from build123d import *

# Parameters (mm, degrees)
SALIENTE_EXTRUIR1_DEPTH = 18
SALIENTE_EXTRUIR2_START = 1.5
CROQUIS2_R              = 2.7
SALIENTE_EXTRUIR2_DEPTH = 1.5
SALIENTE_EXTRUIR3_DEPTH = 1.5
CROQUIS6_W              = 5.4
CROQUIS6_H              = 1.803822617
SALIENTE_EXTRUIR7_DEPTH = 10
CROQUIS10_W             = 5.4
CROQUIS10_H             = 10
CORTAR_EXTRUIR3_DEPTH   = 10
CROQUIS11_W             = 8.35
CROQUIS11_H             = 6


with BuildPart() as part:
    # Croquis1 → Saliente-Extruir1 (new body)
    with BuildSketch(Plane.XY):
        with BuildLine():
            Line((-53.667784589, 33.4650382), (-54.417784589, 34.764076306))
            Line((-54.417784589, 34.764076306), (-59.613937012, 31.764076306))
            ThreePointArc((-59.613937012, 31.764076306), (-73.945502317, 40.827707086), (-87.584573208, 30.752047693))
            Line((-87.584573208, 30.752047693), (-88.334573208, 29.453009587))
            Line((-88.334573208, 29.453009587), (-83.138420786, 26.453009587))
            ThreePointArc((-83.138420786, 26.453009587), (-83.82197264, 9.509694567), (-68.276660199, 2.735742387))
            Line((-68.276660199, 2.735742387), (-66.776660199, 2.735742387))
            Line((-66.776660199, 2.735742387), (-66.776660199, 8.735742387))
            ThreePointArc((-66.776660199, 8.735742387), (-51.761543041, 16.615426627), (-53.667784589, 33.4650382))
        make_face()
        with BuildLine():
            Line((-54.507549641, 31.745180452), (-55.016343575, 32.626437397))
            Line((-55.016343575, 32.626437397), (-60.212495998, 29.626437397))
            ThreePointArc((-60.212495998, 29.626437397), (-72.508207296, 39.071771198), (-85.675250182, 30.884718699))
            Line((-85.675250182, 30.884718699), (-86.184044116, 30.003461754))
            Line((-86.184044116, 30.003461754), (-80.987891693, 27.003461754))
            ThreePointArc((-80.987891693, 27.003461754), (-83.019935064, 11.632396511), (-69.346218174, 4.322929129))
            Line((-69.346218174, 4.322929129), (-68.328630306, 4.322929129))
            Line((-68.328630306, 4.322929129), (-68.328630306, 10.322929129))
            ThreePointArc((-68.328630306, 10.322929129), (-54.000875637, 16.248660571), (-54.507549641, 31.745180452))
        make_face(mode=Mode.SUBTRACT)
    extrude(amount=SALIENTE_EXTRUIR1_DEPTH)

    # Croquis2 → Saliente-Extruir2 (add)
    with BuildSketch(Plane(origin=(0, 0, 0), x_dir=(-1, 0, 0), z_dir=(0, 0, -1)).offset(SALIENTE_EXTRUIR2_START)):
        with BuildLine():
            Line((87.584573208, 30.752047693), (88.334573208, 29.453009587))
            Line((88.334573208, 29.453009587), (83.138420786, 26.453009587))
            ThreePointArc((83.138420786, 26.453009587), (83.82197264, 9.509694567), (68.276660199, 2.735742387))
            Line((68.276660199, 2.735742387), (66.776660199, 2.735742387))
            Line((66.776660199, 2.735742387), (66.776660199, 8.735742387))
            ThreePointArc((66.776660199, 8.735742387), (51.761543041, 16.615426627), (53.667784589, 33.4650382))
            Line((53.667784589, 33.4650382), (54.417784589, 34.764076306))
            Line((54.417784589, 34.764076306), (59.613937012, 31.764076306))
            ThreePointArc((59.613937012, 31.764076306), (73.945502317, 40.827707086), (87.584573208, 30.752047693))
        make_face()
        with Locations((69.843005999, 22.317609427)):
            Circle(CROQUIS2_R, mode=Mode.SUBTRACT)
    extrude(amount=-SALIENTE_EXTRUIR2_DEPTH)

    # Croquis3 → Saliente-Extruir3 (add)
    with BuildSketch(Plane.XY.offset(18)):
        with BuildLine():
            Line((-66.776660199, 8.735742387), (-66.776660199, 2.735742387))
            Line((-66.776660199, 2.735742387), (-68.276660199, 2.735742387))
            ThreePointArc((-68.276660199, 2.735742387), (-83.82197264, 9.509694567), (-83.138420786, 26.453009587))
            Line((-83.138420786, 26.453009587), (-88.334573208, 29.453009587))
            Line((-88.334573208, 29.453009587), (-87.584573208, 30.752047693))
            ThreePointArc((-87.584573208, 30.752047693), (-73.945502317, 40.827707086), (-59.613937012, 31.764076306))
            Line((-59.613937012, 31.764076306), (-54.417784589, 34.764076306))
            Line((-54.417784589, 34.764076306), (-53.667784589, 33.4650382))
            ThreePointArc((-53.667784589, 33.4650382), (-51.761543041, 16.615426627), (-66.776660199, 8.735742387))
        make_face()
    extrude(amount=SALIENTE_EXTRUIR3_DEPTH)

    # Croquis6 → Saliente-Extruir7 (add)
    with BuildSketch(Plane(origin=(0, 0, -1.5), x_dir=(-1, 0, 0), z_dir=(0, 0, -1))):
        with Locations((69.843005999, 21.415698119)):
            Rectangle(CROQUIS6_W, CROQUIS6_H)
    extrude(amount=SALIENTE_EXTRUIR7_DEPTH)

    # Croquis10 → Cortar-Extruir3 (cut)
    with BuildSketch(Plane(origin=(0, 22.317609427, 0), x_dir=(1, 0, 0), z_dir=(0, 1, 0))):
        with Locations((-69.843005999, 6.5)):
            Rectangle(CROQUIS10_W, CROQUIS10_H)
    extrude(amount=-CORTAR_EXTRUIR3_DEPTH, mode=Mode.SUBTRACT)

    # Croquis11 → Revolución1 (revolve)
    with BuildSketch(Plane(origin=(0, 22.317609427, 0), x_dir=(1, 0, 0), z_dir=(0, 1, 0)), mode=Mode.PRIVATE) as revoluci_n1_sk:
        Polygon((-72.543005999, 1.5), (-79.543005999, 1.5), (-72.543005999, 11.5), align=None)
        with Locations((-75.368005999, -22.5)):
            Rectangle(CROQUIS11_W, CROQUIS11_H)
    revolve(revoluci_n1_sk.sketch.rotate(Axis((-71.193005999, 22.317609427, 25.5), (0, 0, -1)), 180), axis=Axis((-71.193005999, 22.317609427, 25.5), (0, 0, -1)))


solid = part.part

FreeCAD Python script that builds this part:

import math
import FreeCAD as App
import Part
import Sketcher

V = App.Vector
Q = App.Units.Quantity


def add_polygon(sketch, points):
    """Adds a closed chain of lines whose ends are joined by coincident constraints."""
    first, n = sketch.GeometryCount, len(points)
    for a, b in zip(points, points[1:] + points[:1]):
        sketch.addGeometry(Part.LineSegment(App.Vector(*a, 0), App.Vector(*b, 0)), False)
    for i in range(n):
        sketch.addConstraint(Sketcher.Constraint("Coincident", first + i, 2, first + (i + 1) % n, 1))

doc = App.newDocument("Part")
body = doc.addObject("PartDesign::Body", "Body")

# Sketch on XY plane
sketch1 = body.newObject("Sketcher::SketchObject", "Sketch")
sketch1.AttachmentSupport = (doc.getObject("XY_Plane"), [""])
sketch1.MapMode = "FlatFace"
sketch1.addGeometry([
    Part.LineSegment(V(-53.7, 33.5, 0), V(-54.4, 34.8, 0)),  # 0
    Part.LineSegment(V(-54.4, 34.8, 0), V(-59.6, 31.8, 0)),  # 1
    Part.ArcOfCircle(Part.Circle(V(-73.4, 25.8, 0), V(0, 0, 1), 15), math.radians(23), math.radians(161)),  # 2
    Part.LineSegment(V(-87.6, 30.8, 0), V(-88.3, 29.5, 0)),  # 3
    Part.LineSegment(V(-88.3, 29.5, 0), V(-83.1, 26.5, 0)),  # 4
    Part.ArcOfCircle(Part.Circle(V(-71.1, 17.5, 0), V(0, 0, 1), 15), math.radians(143), math.radians(281)),  # 5
    Part.LineSegment(V(-68.3, 2.7, 0), V(-66.8, 2.7, 0)),  # 6
    Part.LineSegment(V(-66.8, 2.7, 0), V(-66.8, 8.7, 0)),  # 7
    Part.ArcOfCircle(Part.Circle(V(-65, 23.6, 0), V(0, 0, 1), 15), math.radians(-97), math.radians(41)),  # 8
    Part.LineSegment(V(-55, 32.6, 0), V(-54.5, 31.7, 0)),  # 9
    Part.ArcOfCircle(Part.Circle(V(-65.4, 23.6, 0), V(0, 0, 1), 13.6), math.radians(-102), math.radians(37)),  # 10
    Part.LineSegment(V(-68.3, 10.3, 0), V(-68.3, 4.3, 0)),  # 11
    Part.LineSegment(V(-68.3, 4.3, 0), V(-69.3, 4.3, 0)),  # 12
    Part.ArcOfCircle(Part.Circle(V(-70.9, 17.9, 0), V(0, 0, 1), 13.6), math.radians(138), math.radians(277)),  # 13
    Part.LineSegment(V(-81, 27, 0), V(-86.2, 30, 0)),  # 14
    Part.LineSegment(V(-86.2, 30, 0), V(-85.7, 30.9, 0)),  # 15
    Part.ArcOfCircle(Part.Circle(V(-73.2, 25.5, 0), V(0, 0, 1), 13.6), math.radians(18), math.radians(157)),  # 16
    Part.LineSegment(V(-60.2, 29.6, 0), V(-55, 32.6, 0)),  # 17
], False)
sketch1.addConstraint([
    Sketcher.Constraint("Coincident", 0, 2, 1, 1),
    Sketcher.Constraint("Coincident", 1, 2, 2, 1),
    Sketcher.Constraint("Coincident", 2, 2, 3, 1),
    Sketcher.Constraint("Coincident", 3, 2, 4, 1),
    Sketcher.Constraint("Coincident", 4, 2, 5, 1),
    Sketcher.Constraint("Coincident", 5, 2, 6, 1),
    Sketcher.Constraint("Coincident", 6, 2, 7, 1),
    Sketcher.Constraint("Coincident", 7, 2, 8, 1),
    Sketcher.Constraint("Coincident", 8, 2, 0, 1),
    Sketcher.Constraint("Coincident", 9, 2, 10, 2),
    Sketcher.Constraint("Coincident", 10, 1, 11, 1),
    Sketcher.Constraint("Coincident", 11, 2, 12, 1),
    Sketcher.Constraint("Coincident", 12, 2, 13, 2),
    Sketcher.Constraint("Coincident", 13, 1, 14, 1),
    Sketcher.Constraint("Coincident", 14, 2, 15, 1),
    Sketcher.Constraint("Coincident", 15, 2, 16, 2),
    Sketcher.Constraint("Coincident", 16, 1, 17, 1),
    Sketcher.Constraint("Coincident", 17, 2, 9, 1),
    Sketcher.Constraint("Horizontal", 6),
    Sketcher.Constraint("Vertical", 7),
    Sketcher.Constraint("Vertical", 11),
    Sketcher.Constraint("Horizontal", 12),
    Sketcher.Constraint("Equal", 2, 5),
    Sketcher.Constraint("Equal", 5, 8),
    Sketcher.Constraint("Equal", 10, 13),
    Sketcher.Constraint("Equal", 13, 16),
    Sketcher.Constraint("Perpendicular", 0, 1),
    Sketcher.Constraint("Perpendicular", 3, 4),
    Sketcher.Constraint("Perpendicular", 1, 9),
    Sketcher.Constraint("Parallel", 4, 14),
    Sketcher.Constraint("Perpendicular", 14, 15),
    Sketcher.Constraint("Perpendicular", 9, 17),
    Sketcher.Constraint("Equal", 7, 11),
    Sketcher.Constraint("Equal", 0, 3),
    Sketcher.Constraint("Equal", 1, 4),
    Sketcher.Constraint("Equal", 4, 14),
    Sketcher.Constraint("Equal", 9, 15),
    Sketcher.Constraint("Equal", 14, 17),
    Sketcher.Constraint("DistanceY", 7, 1, 7, 2, 6.0),
    Sketcher.Constraint("Angle", 0, Q("120 deg")),
    Sketcher.Constraint("Angle", 3, Q("-120 deg")),
    Sketcher.Constraint("Distance", 1, 6.0),
    Sketcher.Constraint("DistanceX", 6, 1, 6, 2, 1.5),
    Sketcher.Constraint("Distance", 0, 1.5),
    Sketcher.Constraint("Radius", 10, 13.617321),
    Sketcher.Constraint("Radius", 2, 15.013887),
    Sketcher.Constraint("DistanceY", 16, 3, 2, 2, 5.281001),
    Sketcher.Constraint("DistanceX", 8, 3, 0, 2, 10.609101),
    Sketcher.Constraint("DistanceY", 10, 3, 9, 2, 8.114101),
    Sketcher.Constraint("DistanceY", 16, 1, 8, 2, 3.838601),
    Sketcher.Constraint("DistanceX", 12, 2, 12, 1, 1.017588),
    Sketcher.Constraint("DistanceY", -1, 1, 2, 3, 25.823638),
    Sketcher.Constraint("DistanceY", -1, 1, 10, 3, 23.631079),
    Sketcher.Constraint("DistanceX", 13, 3, -1, 1, 70.905312),
    Sketcher.Constraint("DistanceX", 16, 3, -1, 1, 73.180308),
    Sketcher.Constraint("DistanceY", -1, 1, 3, 2, 29.45301),
    Sketcher.Constraint("DistanceX", 4, 2, -1, 1, 83.138421),
    Sketcher.Constraint("DistanceX", 5, 2, -1, 1, 68.27666),
    Sketcher.Constraint("DistanceY", -1, 1, 8, 2, 33.465038),
    Sketcher.Constraint("DistanceX", 10, 1, -1, 1, 68.32863),
])
pad1 = body.newObject("PartDesign::Pad", "Pad")
pad1.Profile = sketch1
pad1.Length = 18

# Sketch on XY plane
sketch2 = body.newObject("Sketcher::SketchObject", "Sketch001")
sketch2.AttachmentSupport = (doc.getObject("XY_Plane"), [""])
sketch2.MapMode = "FlatFace"
sketch2.AttachmentOffset = App.Placement(V(0, 0, -1.5), App.Rotation())
sketch2.addGeometry([
    Part.LineSegment(V(-88.3, 29.5, 0), V(-87.6, 30.8, 0)),  # 0
    Part.ArcOfCircle(Part.Circle(V(-73.4, 25.8, 0), V(0, 0, 1), 15), math.radians(23), math.radians(161)),  # 1
    Part.LineSegment(V(-59.6, 31.8, 0), V(-54.4, 34.8, 0)),  # 2
    Part.LineSegment(V(-54.4, 34.8, 0), V(-53.7, 33.5, 0)),  # 3
    Part.ArcOfCircle(Part.Circle(V(-65, 23.6, 0), V(0, 0, 1), 15), math.radians(-97), math.radians(41)),  # 4
    Part.LineSegment(V(-66.8, 8.7, 0), V(-66.8, 2.7, 0)),  # 5
    Part.LineSegment(V(-66.8, 2.7, 0), V(-68.3, 2.7, 0)),  # 6
    Part.ArcOfCircle(Part.Circle(V(-71.1, 17.5, 0), V(0, 0, 1), 15), math.radians(143), math.radians(281)),  # 7
    Part.LineSegment(V(-83.1, 26.5, 0), V(-88.3, 29.5, 0)),  # 8
    Part.Circle(V(-69.8, 22.3, 0), V(0, 0, 1), 2.7),  # 9
], False)
sketch2.addConstraint([
    Sketcher.Constraint("Coincident", 0, 2, 1, 2),
    Sketcher.Constraint("Coincident", 1, 1, 2, 1),
    Sketcher.Constraint("Coincident", 2, 2, 3, 1),
    Sketcher.Constraint("Coincident", 3, 2, 4, 2),
    Sketcher.Constraint("Coincident", 4, 1, 5, 1),
    Sketcher.Constraint("Coincident", 5, 2, 6, 1),
    Sketcher.Constraint("Coincident", 6, 2, 7, 2),
    Sketcher.Constraint("Coincident", 7, 1, 8, 1),
    Sketcher.Constraint("Coincident", 8, 2, 0, 1),
    Sketcher.Constraint("Vertical", 5),
    Sketcher.Constraint("Horizontal", 6),
    Sketcher.Constraint("Equal", 1, 4),
    Sketcher.Constraint("Equal", 4, 7),
    Sketcher.Constraint("Perpendicular", 2, 3),
    Sketcher.Constraint("Perpendicular", 0, 8),
    Sketcher.Constraint("Equal", 0, 3),
    Sketcher.Constraint("Equal", 2, 8),
    Sketcher.Constraint("Diameter", 9, 5.4),
    Sketcher.Constraint("DistanceY", 5, 2, 5, 1, 6.0),
    Sketcher.Constraint("Angle", 0, Q("60 deg")),
    Sketcher.Constraint("Angle", 2, Q("30 deg")),
    Sketcher.Constraint("Distance", 2, 6.0),
    Sketcher.Constraint("DistanceX", 6, 2, 6, 1, 1.5),
    Sketcher.Constraint("Distance", 0, 1.5),
    Sketcher.Constraint("Radius", 1, 15.013887),
    Sketcher.Constraint("DistanceX", 7, 3, 9, 3, 1.256499),
    Sketcher.Constraint("DistanceX", 4, 3, 2, 2, 10.609101),
    Sketcher.Constraint("DistanceY", 1, 3, 3, 2, 7.6414),
    Sketcher.Constraint("DistanceY", 9, 3, 7, 1, 4.1354),
    Sketcher.Constraint("DistanceY", -1, 1, 1, 3, 25.823638),
    Sketcher.Constraint("DistanceY", -1, 1, 9, 3, 22.317609),
    Sketcher.Constraint("DistanceX", 4, 1, -1, 1, 66.77666),
    Sketcher.Constraint("DistanceX", 7, 1, -1, 1, 83.138421),
])
pad2 = body.newObject("PartDesign::Pad", "Pad001")
pad2.Profile = sketch2
pad2.Length = 1.5

# Sketch on XY plane
sketch3 = body.newObject("Sketcher::SketchObject", "Sketch002")
sketch3.AttachmentSupport = (doc.getObject("XY_Plane"), [""])
sketch3.MapMode = "FlatFace"
sketch3.AttachmentOffset = App.Placement(V(0, 0, 18), App.Rotation())
sketch3.addGeometry([
    Part.LineSegment(V(-66.8, 2.7, 0), V(-66.8, 8.7, 0)),  # 0
    Part.ArcOfCircle(Part.Circle(V(-65, 23.6, 0), V(0, 0, 1), 15), math.radians(-97), math.radians(41)),  # 1
    Part.LineSegment(V(-53.7, 33.5, 0), V(-54.4, 34.8, 0)),  # 2
    Part.LineSegment(V(-54.4, 34.8, 0), V(-59.6, 31.8, 0)),  # 3
    Part.ArcOfCircle(Part.Circle(V(-73.4, 25.8, 0), V(0, 0, 1), 15), math.radians(23), math.radians(161)),  # 4
    Part.LineSegment(V(-87.6, 30.8, 0), V(-88.3, 29.5, 0)),  # 5
    Part.LineSegment(V(-88.3, 29.5, 0), V(-83.1, 26.5, 0)),  # 6
    Part.ArcOfCircle(Part.Circle(V(-71.1, 17.5, 0), V(0, 0, 1), 15), math.radians(143), math.radians(281)),  # 7
    Part.LineSegment(V(-68.3, 2.7, 0), V(-66.8, 2.7, 0)),  # 8
], False)
sketch3.addConstraint([
    Sketcher.Constraint("Coincident", 0, 2, 1, 1),
    Sketcher.Constraint("Coincident", 1, 2, 2, 1),
    Sketcher.Constraint("Coincident", 2, 2, 3, 1),
    Sketcher.Constraint("Coincident", 3, 2, 4, 1),
    Sketcher.Constraint("Coincident", 4, 2, 5, 1),
    Sketcher.Constraint("Coincident", 5, 2, 6, 1),
    Sketcher.Constraint("Coincident", 6, 2, 7, 1),
    Sketcher.Constraint("Coincident", 7, 2, 8, 1),
    Sketcher.Constraint("Coincident", 8, 2, 0, 1),
    Sketcher.Constraint("Vertical", 0),
    Sketcher.Constraint("Horizontal", 8),
    Sketcher.Constraint("Equal", 1, 4),
    Sketcher.Constraint("Equal", 4, 7),
    Sketcher.Constraint("Perpendicular", 2, 3),
    Sketcher.Constraint("Perpendicular", 5, 6),
    Sketcher.Constraint("Equal", 2, 5),
    Sketcher.Constraint("Equal", 3, 6),
    Sketcher.Constraint("DistanceY", 0, 1, 0, 2, 6.0),
    Sketcher.Constraint("Angle", 2, Q("120 deg")),
    Sketcher.Constraint("Angle", 5, Q("-120 deg")),
    Sketcher.Constraint("Distance", 3, 6.0),
    Sketcher.Constraint("DistanceX", 8, 1, 8, 2, 1.5),
    Sketcher.Constraint("Distance", 2, 1.5),
    Sketcher.Constraint("Radius", 1, 15.013887),
    Sketcher.Constraint("DistanceX", 1, 3, 1, 2, 11.359101),
    Sketcher.Constraint("DistanceY", 4, 3, 1, 2, 7.6414),
    Sketcher.Constraint("DistanceY", -1, 1, 4, 3, 25.823638),
    Sketcher.Constraint("DistanceX", 0, 2, -1, 1, 66.77666),
    Sketcher.Constraint("DistanceY", -1, 1, 5, 2, 29.45301),
    Sketcher.Constraint("DistanceX", 6, 2, -1, 1, 83.138421),
])
pad3 = body.newObject("PartDesign::Pad", "Pad002")
pad3.Profile = sketch3
pad3.Length = 1.5

# Sketch on XY plane
sketch4 = body.newObject("Sketcher::SketchObject", "Sketch003")
sketch4.AttachmentSupport = (doc.getObject("XY_Plane"), [""])
sketch4.MapMode = "FlatFace"
sketch4.AttachmentOffset = App.Placement(V(0, 0, -1.5), App.Rotation())
add_polygon(sketch4, [(-67.1, 22.3), (-67.1, 20.5), (-72.5, 20.5), (-72.5, 22.3)])  # lines 0-3
sketch4.addConstraint([
    Sketcher.Constraint("Vertical", 0),
    Sketcher.Constraint("Horizontal", 1),
    Sketcher.Constraint("Vertical", 2),
    Sketcher.Constraint("Horizontal", 3),
    Sketcher.Constraint("DistanceX", 1, 2, 1, 1, 5.4),
    Sketcher.Constraint("DistanceY", 0, 2, 0, 1, 1.803823),
    Sketcher.Constraint("DistanceY", -1, 1, 2, 2, 22.317609),
    Sketcher.Constraint("DistanceX", 0, 2, -1, 1, 67.143006),
])
pad4 = body.newObject("PartDesign::Pad", "Pad003")
pad4.Profile = sketch4
pad4.Length = 10
pad4.Reversed = True

# Sketch on XZ plane
sketch5 = body.newObject("Sketcher::SketchObject", "Sketch004")
sketch5.AttachmentSupport = (doc.getObject("XZ_Plane"), [""])
sketch5.MapMode = "FlatFace"
sketch5.AttachmentOffset = App.Placement(V(0, 0, -22.317609), App.Rotation())
add_polygon(sketch5, [(-73, -12), (-73, -2), (-67, -2), (-67, -12)])  # lines 0-3
sketch5.addConstraint([
    Sketcher.Constraint("Vertical", 0),
    Sketcher.Constraint("Horizontal", 1),
    Sketcher.Constraint("Vertical", 2),
    Sketcher.Constraint("Horizontal", 3),
    Sketcher.Constraint("DistanceY", 0, 1, 0, 2, 10.0),
    Sketcher.Constraint("DistanceX", 1, 1, 1, 2, 5.4),
    Sketcher.Constraint("DistanceY", 0, 2, -1, 1, 1.5),
    Sketcher.Constraint("DistanceX", 0, 2, -1, 1, 72.543006),
])
pocket1 = body.newObject("PartDesign::Pocket", "Pocket")
pocket1.Profile = sketch5
pocket1.Length = 10
pocket1.Reversed = True

# Sketch on XZ plane
sketch6 = body.newObject("Sketcher::SketchObject", "Sketch005")
sketch6.AttachmentSupport = (doc.getObject("XZ_Plane"), [""])
sketch6.MapMode = "FlatFace"
sketch6.AttachmentOffset = App.Placement(V(0, 0, -22.317609), App.Rotation())
add_polygon(sketch6, [(-80, -2), (-73, -2), (-73, -12)])  # lines 0-2
add_polygon(sketch6, [(-80, 20), (-80, 26), (-71, 26), (-71, 20)])  # lines 3-6
sketch6.addGeometry(Part.LineSegment(V(-71, 26, 0), V(-71, -12, 0)), True)  # axis
sketch6.addConstraint([
    Sketcher.Constraint("Horizontal", 0),
    Sketcher.Constraint("Vertical", 1),
    Sketcher.Constraint("Vertical", 3),
    Sketcher.Constraint("Horizontal", 4),
    Sketcher.Constraint("Vertical", 5),
    Sketcher.Constraint("Horizontal", 6),
    Sketcher.Constraint("Vertical", 7),
    Sketcher.Constraint("Coincident", 7, 1, 4, 2),
    Sketcher.Constraint("Horizontal", 1, 2, 7, 2),
    Sketcher.Constraint("Vertical", 2, 2, 3, 2),
    Sketcher.Constraint("DistanceX", 0, 1, 0, 2, 7.0),
    Sketcher.Constraint("DistanceY", 1, 2, 1, 1, 10.0),
    Sketcher.Constraint("DistanceY", 3, 1, 3, 2, 6.0),
    Sketcher.Constraint("DistanceY", 7, 2, 7, 1, 37.0),
    Sketcher.Constraint("DistanceX", 4, 1, 4, 2, 8.35),
    Sketcher.Constraint("DistanceY", 0, 2, -1, 1, 1.5),
    Sketcher.Constraint("DistanceX", 0, 2, -1, 1, 72.543006),
])
revolution = body.newObject("PartDesign::Revolution", "Revolution")
revolution.Profile = sketch6
revolution.ReferenceAxis = (sketch6, ["Axis0"])
revolution.Angle = 360

doc.recompute()
